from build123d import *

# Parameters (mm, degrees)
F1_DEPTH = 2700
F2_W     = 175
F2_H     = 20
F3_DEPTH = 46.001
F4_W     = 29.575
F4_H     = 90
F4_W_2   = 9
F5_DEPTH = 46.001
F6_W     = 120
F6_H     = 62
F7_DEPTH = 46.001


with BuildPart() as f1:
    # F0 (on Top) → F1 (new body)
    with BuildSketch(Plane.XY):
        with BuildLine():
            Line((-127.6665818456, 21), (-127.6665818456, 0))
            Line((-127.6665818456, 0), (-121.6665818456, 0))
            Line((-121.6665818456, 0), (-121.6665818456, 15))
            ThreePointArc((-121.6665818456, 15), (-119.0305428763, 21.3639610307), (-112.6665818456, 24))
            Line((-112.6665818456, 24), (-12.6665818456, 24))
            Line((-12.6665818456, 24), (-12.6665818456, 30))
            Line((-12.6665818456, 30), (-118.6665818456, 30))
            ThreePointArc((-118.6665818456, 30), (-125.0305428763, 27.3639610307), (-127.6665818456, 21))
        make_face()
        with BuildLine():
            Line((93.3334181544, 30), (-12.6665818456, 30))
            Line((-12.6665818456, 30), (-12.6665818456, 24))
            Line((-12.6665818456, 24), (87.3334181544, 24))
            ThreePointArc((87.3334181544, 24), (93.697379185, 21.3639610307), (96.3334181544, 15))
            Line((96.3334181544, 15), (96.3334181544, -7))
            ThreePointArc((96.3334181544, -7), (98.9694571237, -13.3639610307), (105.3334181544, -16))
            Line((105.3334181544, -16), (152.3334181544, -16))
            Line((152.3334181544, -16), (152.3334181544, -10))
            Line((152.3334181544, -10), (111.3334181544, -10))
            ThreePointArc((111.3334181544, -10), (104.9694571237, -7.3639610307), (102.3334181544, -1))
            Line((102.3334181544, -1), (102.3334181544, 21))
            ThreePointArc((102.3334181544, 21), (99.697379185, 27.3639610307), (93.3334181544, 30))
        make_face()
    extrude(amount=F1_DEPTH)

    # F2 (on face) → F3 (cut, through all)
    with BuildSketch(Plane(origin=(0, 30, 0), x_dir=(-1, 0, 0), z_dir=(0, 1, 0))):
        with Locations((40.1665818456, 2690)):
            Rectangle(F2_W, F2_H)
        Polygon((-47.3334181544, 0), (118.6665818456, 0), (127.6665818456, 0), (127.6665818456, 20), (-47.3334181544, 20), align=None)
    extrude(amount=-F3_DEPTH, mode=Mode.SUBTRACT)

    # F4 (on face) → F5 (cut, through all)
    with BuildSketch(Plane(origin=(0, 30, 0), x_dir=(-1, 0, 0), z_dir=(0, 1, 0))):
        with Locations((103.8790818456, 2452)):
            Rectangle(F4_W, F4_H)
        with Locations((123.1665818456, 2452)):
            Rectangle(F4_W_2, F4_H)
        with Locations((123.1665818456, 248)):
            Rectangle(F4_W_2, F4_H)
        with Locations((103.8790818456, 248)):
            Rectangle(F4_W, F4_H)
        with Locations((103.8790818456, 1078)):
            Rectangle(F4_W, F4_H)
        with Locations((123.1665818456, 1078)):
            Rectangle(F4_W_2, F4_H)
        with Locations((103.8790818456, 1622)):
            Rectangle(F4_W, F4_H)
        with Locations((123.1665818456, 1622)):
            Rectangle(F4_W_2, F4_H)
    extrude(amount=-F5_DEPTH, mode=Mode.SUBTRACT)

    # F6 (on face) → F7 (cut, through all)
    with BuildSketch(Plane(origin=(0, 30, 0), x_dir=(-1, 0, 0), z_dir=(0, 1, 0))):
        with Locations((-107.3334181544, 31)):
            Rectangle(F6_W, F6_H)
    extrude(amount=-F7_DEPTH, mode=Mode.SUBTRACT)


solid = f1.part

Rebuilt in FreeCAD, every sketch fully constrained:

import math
import FreeCAD as App
import Part
import Sketcher

V = App.Vector
Q = App.Units.Quantity


def add_polygon(sketch, points):
    """Adds a closed chain of lines whose ends are joined by coincident constraints."""
    first, n = sketch.GeometryCount, len(points)
    for a, b in zip(points, points[1:] + points[:1]):
        sketch.addGeometry(Part.LineSegment(App.Vector(*a, 0), App.Vector(*b, 0)), False)
    for i in range(n):
        sketch.addConstraint(Sketcher.Constraint("Coincident", first + i, 2, first + (i + 1) % n, 1))

doc = App.newDocument("Part")
body = doc.addObject("PartDesign::Body", "Body")

sketch1 = body.newObject("Sketcher::SketchObject", "Sketch")
sketch1.AttachmentSupport = (doc.getObject("XY_Plane"), [""])
sketch1.MapMode = "FlatFace"
sketch1.addGeometry([
    Part.LineSegment(V(-128, 21, 0), V(-128, 0, 0)),
    Part.LineSegment(V(-128, 0, 0), V(-122, 0, 0)),
    Part.LineSegment(V(-122, 0, 0), V(-122, 15, 0)),
    Part.ArcOfCircle(Part.Circle(V(-113, 15, 0), V(0, 0, 1), 9), math.radians(90), math.radians(180)),
    Part.LineSegment(V(-113, 24, 0), V(87, 24, 0)),
    Part.ArcOfCircle(Part.Circle(V(87, 15, 0), V(0, 0, 1), 9), math.radians(0), math.radians(90)),
    Part.LineSegment(V(96, 15, 0), V(96, -7, 0)),
    Part.ArcOfCircle(Part.Circle(V(105, -7, 0), V(0, 0, 1), 9), math.radians(180), math.radians(270)),
    Part.LineSegment(V(105, -16, 0), V(152, -16, 0)),
    Part.LineSegment(V(152, -16, 0), V(152, -10, 0)),
    Part.LineSegment(V(152, -10, 0), V(111, -10, 0)),
    Part.ArcOfCircle(Part.Circle(V(111, -1, 0), V(0, 0, 1), 9), math.radians(180), math.radians(270)),
    Part.LineSegment(V(102, -1, 0), V(102, 21, 0)),
    Part.ArcOfCircle(Part.Circle(V(93, 21, 0), V(0, 0, 1), 9), math.radians(0), math.radians(90)),
    Part.LineSegment(V(93, 30, 0), V(-119, 30, 0)),
    Part.ArcOfCircle(Part.Circle(V(-119, 21, 0), V(0, 0, 1), 9), math.radians(90), math.radians(180)),
], False)
sketch1.addConstraint([
    Sketcher.Constraint("Coincident", 0, 2, 1, 1),
    Sketcher.Constraint("Coincident", 1, 2, 2, 1),
    Sketcher.Constraint("Tangent", 2, 2, 3, 2),
    Sketcher.Constraint("Tangent", 3, 1, 4, 1),
    Sketcher.Constraint("Tangent", 4, 2, 5, 2),
    Sketcher.Constraint("Tangent", 5, 1, 6, 1),
    Sketcher.Constraint("Tangent", 6, 2, 7, 1),
    Sketcher.Constraint("Tangent", 7, 2, 8, 1),
    Sketcher.Constraint("Coincident", 8, 2, 9, 1),
    Sketcher.Constraint("Coincident", 9, 2, 10, 1),
    Sketcher.Constraint("Tangent", 10, 2, 11, 2),
    Sketcher.Constraint("Tangent", 11, 1, 12, 1),
    Sketcher.Constraint("Tangent", 12, 2, 13, 1),
    Sketcher.Constraint("Tangent", 13, 2, 14, 1),
    Sketcher.Constraint("Tangent", 14, 2, 15, 1),
    Sketcher.Constraint("Tangent", 15, 2, 0, 1),
    Sketcher.Constraint("Vertical", 0),
    Sketcher.Constraint("Horizontal", 1),
    Sketcher.Constraint("Vertical", 2),
    Sketcher.Constraint("Horizontal", 4),
    Sketcher.Constraint("Vertical", 6),
    Sketcher.Constraint("Horizontal", 8),
    Sketcher.Constraint("Vertical", 9),
    Sketcher.Constraint("Horizontal", 10),
    Sketcher.Constraint("Vertical", 12),
    Sketcher.Constraint("Horizontal", 14),
    Sketcher.Constraint("Equal", 3, 5),
    Sketcher.Constraint("Equal", 5, 7),
    Sketcher.Constraint("Equal", 7, 11),
    Sketcher.Constraint("Equal", 11, 13),
    Sketcher.Constraint("Equal", 13, 15),
    Sketcher.Constraint("PointOnObject", 0, 2, -1),
    Sketcher.Constraint("Equal", 1, 9),
    Sketcher.Constraint("Equal", 6, 12),
    Sketcher.Constraint("Radius", 3, Q("9 mm")),
    Sketcher.Constraint("DistanceX", 1, 1, 1, 2, Q("6 mm")),
    Sketcher.Constraint("DistanceX", 4, 1, 4, 2, Q("200 mm")),
    Sketcher.Constraint("DistanceX", 8, 1, 8, 2, Q("47 mm")),
    Sketcher.Constraint("DistanceX", 10, 2, 10, 1, Q("41 mm")),
    Sketcher.Constraint("DistanceY", 0, 2, 0, 1, Q("21 mm")),
    Sketcher.Constraint("DistanceY", 6, 2, 6, 1, Q("22 mm")),
    Sketcher.Constraint("DistanceX", 3, 3, -1, 1, Q("112.666582 mm")),
])
pad1 = body.newObject("PartDesign::Pad", "Pad")
pad1.Profile = sketch1
pad1.Length = 2700

sketch2 = body.newObject("Sketcher::SketchObject", "Sketch001")
sketch2.AttachmentSupport = (doc.getObject("XZ_Plane"), [""])
sketch2.MapMode = "FlatFace"
sketch2.AttachmentOffset = App.Placement(V(0, 0, -30), App.Rotation())
add_polygon(sketch2, [(47, 2700), (47, 2680), (-128, 2680), (-128, 2700)])
add_polygon(sketch2, [(47, 0), (-128, 0), (-128, 20), (47, 20)])
sketch2.addConstraint([
    Sketcher.Constraint("Vertical", 0),
    Sketcher.Constraint("Horizontal", 1),
    Sketcher.Constraint("Vertical", 2),
    Sketcher.Constraint("Horizontal", 3),
    Sketcher.Constraint("Horizontal", 4),
    Sketcher.Constraint("Vertical", 5),
    Sketcher.Constraint("Horizontal", 6),
    Sketcher.Constraint("Vertical", 7),
    Sketcher.Constraint("PointOnObject", 4, 2, -1),
    Sketcher.Constraint("Vertical", 2, 2, 4, 2),
    Sketcher.Constraint("Vertical", 3, 2, 6, 2),
    Sketcher.Constraint("Equal", 2, 5),
    Sketcher.Constraint("DistanceX", 1, 2, 1, 1, Q("175 mm")),
    Sketcher.Constraint("DistanceY", 0, 2, 0, 1, Q("20 mm")),
    Sketcher.Constraint("DistanceY", -1, 1, 0, 2, Q("2680 mm")),
    Sketcher.Constraint("DistanceX", -1, 1, 0, 2, Q("47.333418 mm")),
])
pocket1 = body.newObject("PartDesign::Pocket", "Pocket")
pocket1.Profile = sketch2
pocket1.Type = "ThroughAll"
pocket1.Reversed = True

sketch3 = body.newObject("Sketcher::SketchObject", "Sketch002")
sketch3.AttachmentSupport = (doc.getObject("XZ_Plane"), [""])
sketch3.MapMode = "FlatFace"
sketch3.AttachmentOffset = App.Placement(V(0, 0, -30), App.Rotation())
add_polygon(sketch3, [(-89, 2497), (-89, 2407), (-128, 2407), (-128, 2497)])
add_polygon(sketch3, [(-128, 203), (-128, 293), (-89, 293), (-89, 203)])
add_polygon(sketch3, [(-89, 1123), (-89, 1033), (-128, 1033), (-128, 1123)])
add_polygon(sketch3, [(-89, 1667), (-89, 1577), (-128, 1577), (-128, 1667)])
sketch3.addConstraint([
    Sketcher.Constraint("Vertical", 0),
    Sketcher.Constraint("Horizontal", 1),
    Sketcher.Constraint("Vertical", 2),
    Sketcher.Constraint("Horizontal", 3),
    Sketcher.Constraint("Vertical", 4),
    Sketcher.Constraint("Horizontal", 5),
    Sketcher.Constraint("Vertical", 6),
    Sketcher.Constraint("Horizontal", 7),
    Sketcher.Constraint("Vertical", 8),
    Sketcher.Constraint("Horizontal", 9),
    Sketcher.Constraint("Vertical", 10),
    Sketcher.Constraint("Horizontal", 11),
    Sketcher.Constraint("Vertical", 12),
    Sketcher.Constraint("Horizontal", 13),
    Sketcher.Constraint("Vertical", 14),
    Sketcher.Constraint("Horizontal", 15),
    Sketcher.Constraint("Vertical", 2, 2, 4, 2),
    Sketcher.Constraint("Vertical", 3, 2, 5, 2),
    Sketcher.Constraint("Vertical", 6, 2, 8, 2),
    Sketcher.Constraint("Vertical", 7, 2, 9, 2),
    Sketcher.Constraint("Vertical", 11, 2, 12, 2),
    Sketcher.Constraint("Vertical", 10, 2, 13, 2),
    Sketcher.Constraint("Equal", 2, 4),
    Sketcher.Constraint("Equal", 6, 8),
    Sketcher.Constraint("Equal", 10, 12),
    Sketcher.Constraint("DistanceY", 0, 2, 0, 1, Q("90 mm")),
    Sketcher.Constraint("DistanceY", -1, 1, 0, 2, Q("2407 mm")),
    Sketcher.Constraint("DistanceY", -1, 1, 4, 2, Q("293 mm")),
    Sketcher.Constraint("DistanceY", -1, 1, 8, 2, Q("1033 mm")),
    Sketcher.Constraint("DistanceY", -1, 1, 12, 2, Q("1577 mm")),
    Sketcher.Constraint("DistanceX", 1, 2, 1, 1, Q("38.575 mm")),
    Sketcher.Constraint("DistanceX", 0, 2, -1, 1, Q("89.091582 mm")),
])
pocket2 = body.newObject("PartDesign::Pocket", "Pocket001")
pocket2.Profile = sketch3
pocket2.Type = "ThroughAll"
pocket2.Reversed = True

sketch4 = body.newObject("Sketcher::SketchObject", "Sketch003")
sketch4.AttachmentSupport = (doc.getObject("XZ_Plane"), [""])
sketch4.MapMode = "FlatFace"
sketch4.AttachmentOffset = App.Placement(V(0, 0, -30), App.Rotation())
add_polygon(sketch4, [(167, 62), (167, 0), (47, 0), (47, 62)])
sketch4.addConstraint([
    Sketcher.Constraint("Vertical", 0),
    Sketcher.Constraint("Horizontal", 1),
    Sketcher.Constraint("Vertical", 2),
    Sketcher.Constraint("Horizontal", 3),
    Sketcher.Constraint("PointOnObject", 0, 2, -1),
    Sketcher.Constraint("DistanceX", 1, 2, 1, 1, Q("120 mm")),
    Sketcher.Constraint("DistanceY", 0, 2, 0, 1, Q("62 mm")),
    Sketcher.Constraint("DistanceX", -1, 1, 0, 2, Q("167.333418 mm")),
])
pocket3 = body.newObject("PartDesign::Pocket", "Pocket002")
pocket3.Profile = sketch4
pocket3.Type = "ThroughAll"
pocket3.Reversed = True

doc.recompute()
